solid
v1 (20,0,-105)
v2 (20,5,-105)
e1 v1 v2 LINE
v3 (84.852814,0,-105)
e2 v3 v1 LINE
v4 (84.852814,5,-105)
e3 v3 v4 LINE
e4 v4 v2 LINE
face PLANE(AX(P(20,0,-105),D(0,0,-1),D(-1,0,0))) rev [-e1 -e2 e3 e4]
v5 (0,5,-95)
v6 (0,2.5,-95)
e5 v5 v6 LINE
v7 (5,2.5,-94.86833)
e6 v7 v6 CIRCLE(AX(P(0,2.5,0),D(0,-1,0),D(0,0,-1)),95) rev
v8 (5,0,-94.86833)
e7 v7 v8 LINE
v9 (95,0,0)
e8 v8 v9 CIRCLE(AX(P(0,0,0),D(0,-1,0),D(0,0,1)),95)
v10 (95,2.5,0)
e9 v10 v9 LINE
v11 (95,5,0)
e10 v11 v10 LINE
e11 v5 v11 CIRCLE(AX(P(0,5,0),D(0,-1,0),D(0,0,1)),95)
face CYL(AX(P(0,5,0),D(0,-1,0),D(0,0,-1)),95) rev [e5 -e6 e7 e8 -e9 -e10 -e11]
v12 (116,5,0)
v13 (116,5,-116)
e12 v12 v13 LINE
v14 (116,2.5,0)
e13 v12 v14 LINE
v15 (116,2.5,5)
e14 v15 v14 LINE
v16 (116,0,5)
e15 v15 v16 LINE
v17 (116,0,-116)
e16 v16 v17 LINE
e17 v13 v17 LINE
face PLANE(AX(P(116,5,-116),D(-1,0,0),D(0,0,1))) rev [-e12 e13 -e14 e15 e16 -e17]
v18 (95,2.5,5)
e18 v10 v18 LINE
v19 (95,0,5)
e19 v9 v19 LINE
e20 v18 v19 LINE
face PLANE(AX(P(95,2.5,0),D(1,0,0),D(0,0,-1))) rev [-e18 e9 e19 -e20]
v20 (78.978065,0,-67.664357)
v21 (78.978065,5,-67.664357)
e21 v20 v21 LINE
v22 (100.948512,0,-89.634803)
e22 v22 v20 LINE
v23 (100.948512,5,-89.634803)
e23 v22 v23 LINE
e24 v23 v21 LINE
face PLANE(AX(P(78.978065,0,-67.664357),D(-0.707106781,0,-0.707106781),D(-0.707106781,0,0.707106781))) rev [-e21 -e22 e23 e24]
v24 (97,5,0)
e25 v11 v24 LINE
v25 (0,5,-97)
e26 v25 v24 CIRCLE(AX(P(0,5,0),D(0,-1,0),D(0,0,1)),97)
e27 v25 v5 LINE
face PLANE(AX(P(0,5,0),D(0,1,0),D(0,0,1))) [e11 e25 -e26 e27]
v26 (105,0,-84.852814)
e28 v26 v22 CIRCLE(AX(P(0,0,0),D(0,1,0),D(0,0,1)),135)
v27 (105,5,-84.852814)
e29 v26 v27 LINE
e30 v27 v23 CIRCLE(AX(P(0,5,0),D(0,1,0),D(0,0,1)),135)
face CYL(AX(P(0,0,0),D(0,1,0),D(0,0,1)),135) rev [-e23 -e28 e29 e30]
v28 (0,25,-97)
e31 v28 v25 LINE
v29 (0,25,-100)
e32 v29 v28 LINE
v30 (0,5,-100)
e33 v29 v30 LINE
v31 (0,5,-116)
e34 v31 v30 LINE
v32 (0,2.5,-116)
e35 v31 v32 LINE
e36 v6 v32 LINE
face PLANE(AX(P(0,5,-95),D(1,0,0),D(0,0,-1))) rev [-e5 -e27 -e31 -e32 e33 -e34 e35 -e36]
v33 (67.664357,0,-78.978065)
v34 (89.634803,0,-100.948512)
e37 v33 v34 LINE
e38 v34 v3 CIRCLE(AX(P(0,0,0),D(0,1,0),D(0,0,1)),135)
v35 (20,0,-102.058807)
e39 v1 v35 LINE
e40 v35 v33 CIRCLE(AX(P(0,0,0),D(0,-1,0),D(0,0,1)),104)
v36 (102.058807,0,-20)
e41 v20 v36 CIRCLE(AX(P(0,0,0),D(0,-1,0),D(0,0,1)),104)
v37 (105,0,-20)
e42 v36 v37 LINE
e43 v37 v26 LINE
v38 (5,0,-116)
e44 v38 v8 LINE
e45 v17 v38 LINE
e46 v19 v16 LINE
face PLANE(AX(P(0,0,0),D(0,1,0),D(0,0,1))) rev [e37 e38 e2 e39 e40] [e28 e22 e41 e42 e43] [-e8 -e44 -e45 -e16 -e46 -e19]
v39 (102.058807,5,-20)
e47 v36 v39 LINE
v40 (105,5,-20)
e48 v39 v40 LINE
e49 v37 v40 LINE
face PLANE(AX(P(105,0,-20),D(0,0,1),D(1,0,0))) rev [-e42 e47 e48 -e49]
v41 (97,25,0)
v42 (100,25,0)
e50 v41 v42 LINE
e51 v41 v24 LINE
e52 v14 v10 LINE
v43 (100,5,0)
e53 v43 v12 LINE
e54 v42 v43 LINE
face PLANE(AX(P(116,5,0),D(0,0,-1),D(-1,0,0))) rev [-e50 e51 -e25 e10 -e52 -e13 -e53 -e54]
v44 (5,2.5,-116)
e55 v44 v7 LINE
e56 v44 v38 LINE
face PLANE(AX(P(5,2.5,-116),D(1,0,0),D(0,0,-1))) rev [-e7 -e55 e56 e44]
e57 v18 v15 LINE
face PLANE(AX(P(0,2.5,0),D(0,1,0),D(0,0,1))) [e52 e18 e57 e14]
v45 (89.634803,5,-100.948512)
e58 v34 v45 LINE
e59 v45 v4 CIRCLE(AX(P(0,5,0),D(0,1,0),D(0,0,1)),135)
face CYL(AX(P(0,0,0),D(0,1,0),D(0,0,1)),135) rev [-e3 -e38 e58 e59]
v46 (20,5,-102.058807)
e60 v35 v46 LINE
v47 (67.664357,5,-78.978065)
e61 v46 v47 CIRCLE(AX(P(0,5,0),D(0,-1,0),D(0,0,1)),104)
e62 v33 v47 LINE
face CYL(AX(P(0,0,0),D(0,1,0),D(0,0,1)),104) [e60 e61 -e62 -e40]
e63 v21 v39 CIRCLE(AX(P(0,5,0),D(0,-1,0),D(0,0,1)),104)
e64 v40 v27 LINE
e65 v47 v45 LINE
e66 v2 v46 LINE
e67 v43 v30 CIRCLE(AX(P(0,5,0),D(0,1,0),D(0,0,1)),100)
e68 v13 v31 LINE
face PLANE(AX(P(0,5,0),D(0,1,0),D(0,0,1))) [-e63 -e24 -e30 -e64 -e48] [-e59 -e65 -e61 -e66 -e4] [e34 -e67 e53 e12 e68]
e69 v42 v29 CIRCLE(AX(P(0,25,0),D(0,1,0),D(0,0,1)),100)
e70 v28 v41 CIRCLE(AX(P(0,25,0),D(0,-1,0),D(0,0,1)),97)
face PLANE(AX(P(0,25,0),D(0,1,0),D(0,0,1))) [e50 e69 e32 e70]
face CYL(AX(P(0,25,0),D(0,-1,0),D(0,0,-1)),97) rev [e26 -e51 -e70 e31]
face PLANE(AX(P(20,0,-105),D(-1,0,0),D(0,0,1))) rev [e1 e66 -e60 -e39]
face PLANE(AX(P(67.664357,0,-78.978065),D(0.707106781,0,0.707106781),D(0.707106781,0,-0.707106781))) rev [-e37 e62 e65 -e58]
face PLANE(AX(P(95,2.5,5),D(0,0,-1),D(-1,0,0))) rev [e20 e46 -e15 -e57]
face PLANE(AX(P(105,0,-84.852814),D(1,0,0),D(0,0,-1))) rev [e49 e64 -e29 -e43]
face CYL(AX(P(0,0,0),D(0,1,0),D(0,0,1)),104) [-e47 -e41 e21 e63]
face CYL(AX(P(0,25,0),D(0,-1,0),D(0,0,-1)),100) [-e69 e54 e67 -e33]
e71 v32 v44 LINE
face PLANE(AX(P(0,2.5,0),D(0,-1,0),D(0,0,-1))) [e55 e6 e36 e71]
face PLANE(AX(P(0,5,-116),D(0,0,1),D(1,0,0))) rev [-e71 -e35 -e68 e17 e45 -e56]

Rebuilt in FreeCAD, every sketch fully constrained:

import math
import FreeCAD as App
import Part
import Sketcher

V = App.Vector
Q = App.Units.Quantity


def add_polygon(sketch, points):
    """Adds a closed chain of lines whose ends are joined by coincident constraints."""
    first, n = sketch.GeometryCount, len(points)
    for a, b in zip(points, points[1:] + points[:1]):
        sketch.addGeometry(Part.LineSegment(App.Vector(*a, 0), App.Vector(*b, 0)), False)
    for i in range(n):
        sketch.addConstraint(Sketcher.Constraint("Coincident", first + i, 2, first + (i + 1) % n, 1))

doc = App.newDocument("Part")
params = doc.addObject("Spreadsheet::Sheet", "Params")
for row, (alias, value) in enumerate([
    ("sketch1_radius", "95 mm"),
    ("sketch1_width", "21 mm"),
    ("pad1_length", "5 mm"),
    ("sketch2_radius", "100 mm"),
    ("sketch2_radius2", "97 mm"),
    ("pad2_length", "20 mm"),
    ("sketch3_radius", "104 mm"),
    ("sketch3_radius2", "135.000001 mm"),
    ("sketch4_width", "5 mm"),
    ("sketch4_height", "21 mm"),
    ("pocket2_length", "2.5 mm"),
    ("sketch5_width", "21 mm"),
    ("sketch5_height", "5 mm"),
    ("pad3_length", "2.5 mm"),
], start=1):
    params.set(f"A{row}", alias)
    params.set(f"B{row}", "=" + value)
    params.setAlias(f"B{row}", alias)

body = doc.addObject("PartDesign::Body", "Body")

# Sketch on XZ plane
sketch1 = doc.addObject("Sketcher::SketchObject", "Sketch")
body.addObject(sketch1)
sketch1.AttachmentSupport = (doc.XZ_Plane, [""])
sketch1.MapMode = "FlatFace"
sketch1.addGeometry([
    Part.LineSegment(V(0, -116, 0), V(0, -95, 0)),  # 0
    Part.ArcOfCircle(Part.Circle(V(0, 0, 0), V(0, 0, 1), 95), math.radians(-90), math.radians(0)),  # 1
    Part.LineSegment(V(95, 0, 0), V(116, 0, 0)),  # 2
    Part.LineSegment(V(116, 0, 0), V(116, -116, 0)),  # 3
    Part.LineSegment(V(116, -116, 0), V(0, -116, 0)),  # 4
], False)
sketch1.addConstraint([
    Sketcher.Constraint("Coincident", 0, 2, 1, 1),
    Sketcher.Constraint("Coincident", 1, 2, 2, 1),
    Sketcher.Constraint("Coincident", 2, 2, 3, 1),
    Sketcher.Constraint("Coincident", 3, 2, 4, 1),
    Sketcher.Constraint("Coincident", 4, 2, 0, 1),
    Sketcher.Constraint("Vertical", 0),
    Sketcher.Constraint("Horizontal", 2),
    Sketcher.Constraint("Vertical", 3),
    Sketcher.Constraint("Horizontal", 4),
    Sketcher.Constraint("Coincident", 1, 3, -1, 1),
    Sketcher.Constraint("PointOnObject", 0, 2, -2),
    Sketcher.Constraint("PointOnObject", 1, 2, -1),
    Sketcher.Constraint("Equal", 2, 0),
    Sketcher.Constraint("Radius", 1, Q("95 mm")),
    Sketcher.Constraint("DistanceX", 2, 1, 2, 2, Q("21 mm")),
])
sketch1.setExpression("Constraints[13]", "Params.sketch1_radius")
sketch1.setExpression("Constraints[14]", "Params.sketch1_width")
pad1 = doc.addObject("PartDesign::Pad", "Pad")
body.addObject(pad1)
pad1.Profile = sketch1
pad1.setExpression("Length", "Params.pad1_length")
pad1.Reversed = True

# Sketch on XZ plane
sketch2 = doc.addObject("Sketcher::SketchObject", "Sketch001")
body.addObject(sketch2)
sketch2.AttachmentSupport = (doc.XZ_Plane, [""])
sketch2.MapMode = "FlatFace"
sketch2.AttachmentOffset = App.Placement(V(0, 0, -5), App.Rotation())
sketch2.addGeometry([
    Part.LineSegment(V(97, 0, 0), V(100, 0, 0)),
    Part.ArcOfCircle(Part.Circle(V(0, 0, 0), V(0, 0, 1), 100), math.radians(-90), math.radians(0)),
    Part.LineSegment(V(0, -100, 0), V(0, -97, 0)),
    Part.ArcOfCircle(Part.Circle(V(0, 0, 0), V(0, 0, 1), 97), math.radians(-90), math.radians(0)),
], False)
sketch2.addConstraint([
    Sketcher.Constraint("Coincident", 0, 2, 1, 2),
    Sketcher.Constraint("Coincident", 1, 1, 2, 1),
    Sketcher.Constraint("Coincident", 2, 2, 3, 1),
    Sketcher.Constraint("Coincident", 3, 2, 0, 1),
    Sketcher.Constraint("Horizontal", 0),
    Sketcher.Constraint("Vertical", 2),
    Sketcher.Constraint("Coincident", 1, 3, -1, 1),
    Sketcher.Constraint("Coincident", 3, 3, -1, 1),
    Sketcher.Constraint("PointOnObject", 0, 2, -1),
    Sketcher.Constraint("PointOnObject", 1, 1, -2),
    Sketcher.Constraint("Radius", 1, Q("100 mm")),
    Sketcher.Constraint("Radius", 3, Q("97 mm")),
])
sketch2.setExpression("Constraints[10]", "Params.sketch2_radius")
sketch2.setExpression("Constraints[11]", "Params.sketch2_radius2")
pad2 = doc.addObject("PartDesign::Pad", "Pad001")
body.addObject(pad2)
pad2.Profile = sketch2
pad2.setExpression("Length", "Params.pad2_length")
pad2.Reversed = True

# Sketch on XZ plane
sketch3 = doc.addObject("Sketcher::SketchObject", "Sketch002")
body.addObject(sketch3)
sketch3.AttachmentSupport = (doc.XZ_Plane, [""])
sketch3.MapMode = "FlatFace"
sketch3.AttachmentOffset = App.Placement(V(0, 0, -5), App.Rotation())
sketch3.addGeometry([
    Part.LineSegment(V(84.9, -105, 0), V(20, -105, 0)),  # 0
    Part.LineSegment(V(20, -105, 0), V(20, -102.1, 0)),  # 1
    Part.ArcOfCircle(Part.Circle(V(0, 0, 0), V(0, 0, 1), 104), math.radians(-79), math.radians(-49)),  # 2
    Part.LineSegment(V(67.7, -79, 0), V(89.6, -100.9, 0)),  # 3
    Part.ArcOfCircle(Part.Circle(V(0, 0, 0), V(0, 0, 1), 135), math.radians(-51.06), math.radians(-48.4)),  # 4
    Part.LineSegment(V(105, -20, 0), V(105, -84.9, 0)),  # 5
    Part.ArcOfCircle(Part.Circle(V(0, 0, 0), V(0, 0, 1), 135), math.radians(-41.6), math.radians(-38.94)),  # 6
    Part.LineSegment(V(100.9, -89.6, 0), V(79, -67.7, 0)),  # 7
    Part.ArcOfCircle(Part.Circle(V(0, 0, 0), V(0, 0, 1), 104), math.radians(-41), math.radians(-11)),  # 8
    Part.LineSegment(V(102.1, -20, 0), V(105, -20, 0)),  # 9
], False)
sketch3.addConstraint([
    Sketcher.Constraint("Coincident", 0, 2, 1, 1),
    Sketcher.Constraint("Coincident", 1, 2, 2, 1),
    Sketcher.Constraint("Coincident", 2, 2, 3, 1),
    Sketcher.Constraint("Coincident", 3, 2, 4, 2),
    Sketcher.Constraint("Coincident", 4, 1, 0, 1),
    Sketcher.Constraint("Coincident", 5, 2, 6, 2),
    Sketcher.Constraint("Coincident", 6, 1, 7, 1),
    Sketcher.Constraint("Coincident", 7, 2, 8, 1),
    Sketcher.Constraint("Coincident", 8, 2, 9, 1),
    Sketcher.Constraint("Coincident", 9, 2, 5, 1),
    Sketcher.Constraint("Horizontal", 0),
    Sketcher.Constraint("Vertical", 1),
    Sketcher.Constraint("Vertical", 5),
    Sketcher.Constraint("Horizontal", 9),
    Sketcher.Constraint("Coincident", 2, 3, -1, 1),
    Sketcher.Constraint("Coincident", 4, 3, -1, 1),
    Sketcher.Constraint("Coincident", 6, 3, -1, 1),
    Sketcher.Constraint("Coincident", 8, 3, -1, 1),
    Sketcher.Constraint("Equal", 4, 6),
    Sketcher.Constraint("Equal", 2, 8),
    Sketcher.Constraint("Parallel", 3, 7),
    Sketcher.Constraint("Equal", 9, 1),
    Sketcher.Constraint("Equal", 0, 5),
    Sketcher.Constraint("Equal", 3, 7),
    Sketcher.Constraint("Radius", 2, Q("104 mm")),
    Sketcher.Constraint("Radius", 4, Q("135.000001 mm")),
    Sketcher.Constraint("Angle", 3, Q("-45 deg")),
    Sketcher.Constraint("DistanceX", -1, 1, 0, 2, Q("20 mm")),
    Sketcher.Constraint("DistanceY", 0, 2, -1, 1, Q("105 mm")),
    Sketcher.Constraint("DistanceY", 3, 2, 5, 2, Q("16.095698 mm")),
])
sketch3.setExpression("Constraints[24]", "Params.sketch3_radius")
sketch3.setExpression("Constraints[25]", "Params.sketch3_radius2")
pocket1 = doc.addObject("PartDesign::Pocket", "Pocket")
body.addObject(pocket1)
pocket1.Profile = sketch3
pocket1.Type = "ThroughAll"
pocket1.Reversed = True

# Sketch on XZ plane
sketch4 = doc.addObject("Sketcher::SketchObject", "Sketch003")
body.addObject(sketch4)
sketch4.AttachmentSupport = (doc.XZ_Plane, [""])
sketch4.MapMode = "FlatFace"
add_polygon(sketch4, [(0, -95), (0, -116), (5, -116), (5, -95)])  # lines 0-3
sketch4.addConstraint([
    Sketcher.Constraint("Vertical", 0),
    Sketcher.Constraint("Horizontal", 1),
    Sketcher.Constraint("Vertical", 2),
    Sketcher.Constraint("PointOnObject", 0, 2, -2),
    Sketcher.Constraint("DistanceX", 1, 1, 1, 2, Q("5 mm")),
    Sketcher.Constraint("DistanceY", 0, 2, 0, 1, Q("21 mm")),
    Sketcher.Constraint("DistanceY", 0, 2, -1, 1, Q("116 mm")),
    Sketcher.Constraint("DistanceY", 2, 1, 2, 2, Q("21.13167 mm")),
])
sketch4.setExpression("Constraints[8]", "Params.sketch4_width")
sketch4.setExpression("Constraints[9]", "Params.sketch4_height")
pocket2 = doc.addObject("PartDesign::Pocket", "Pocket001")
body.addObject(pocket2)
pocket2.Profile = sketch4
pocket2.setExpression("Length", "Params.pocket2_length")

# Sketch on XZ plane
sketch5 = doc.addObject("Sketcher::SketchObject", "Sketch004")
body.addObject(sketch5)
sketch5.AttachmentSupport = (doc.XZ_Plane, [""])
sketch5.MapMode = "FlatFace"
add_polygon(sketch5, [(95, 0), (95, 5), (116, 5), (116, 0)])  # lines 0-3
sketch5.addConstraint([
    Sketcher.Constraint("Vertical", 0),
    Sketcher.Constraint("Horizontal", 1),
    Sketcher.Constraint("Vertical", 2),
    Sketcher.Constraint("Horizontal", 3),
    Sketcher.Constraint("PointOnObject", 2, 2, -1),
    Sketcher.Constraint("DistanceX", 1, 1, 1, 2, Q("21 mm")),
    Sketcher.Constraint("DistanceY", 0, 1, 0, 2, Q("5 mm")),
    Sketcher.Constraint("DistanceX", -1, 1, 0, 2, Q("95 mm")),
])
sketch5.setExpression("Constraints[9]", "Params.sketch5_width")
sketch5.setExpression("Constraints[10]", "Params.sketch5_height")
pad3 = doc.addObject("PartDesign::Pad", "Pad002")
body.addObject(pad3)
pad3.Profile = sketch5
pad3.setExpression("Length", "Params.pad3_length")
pad3.Reversed = True

doc.recompute()
